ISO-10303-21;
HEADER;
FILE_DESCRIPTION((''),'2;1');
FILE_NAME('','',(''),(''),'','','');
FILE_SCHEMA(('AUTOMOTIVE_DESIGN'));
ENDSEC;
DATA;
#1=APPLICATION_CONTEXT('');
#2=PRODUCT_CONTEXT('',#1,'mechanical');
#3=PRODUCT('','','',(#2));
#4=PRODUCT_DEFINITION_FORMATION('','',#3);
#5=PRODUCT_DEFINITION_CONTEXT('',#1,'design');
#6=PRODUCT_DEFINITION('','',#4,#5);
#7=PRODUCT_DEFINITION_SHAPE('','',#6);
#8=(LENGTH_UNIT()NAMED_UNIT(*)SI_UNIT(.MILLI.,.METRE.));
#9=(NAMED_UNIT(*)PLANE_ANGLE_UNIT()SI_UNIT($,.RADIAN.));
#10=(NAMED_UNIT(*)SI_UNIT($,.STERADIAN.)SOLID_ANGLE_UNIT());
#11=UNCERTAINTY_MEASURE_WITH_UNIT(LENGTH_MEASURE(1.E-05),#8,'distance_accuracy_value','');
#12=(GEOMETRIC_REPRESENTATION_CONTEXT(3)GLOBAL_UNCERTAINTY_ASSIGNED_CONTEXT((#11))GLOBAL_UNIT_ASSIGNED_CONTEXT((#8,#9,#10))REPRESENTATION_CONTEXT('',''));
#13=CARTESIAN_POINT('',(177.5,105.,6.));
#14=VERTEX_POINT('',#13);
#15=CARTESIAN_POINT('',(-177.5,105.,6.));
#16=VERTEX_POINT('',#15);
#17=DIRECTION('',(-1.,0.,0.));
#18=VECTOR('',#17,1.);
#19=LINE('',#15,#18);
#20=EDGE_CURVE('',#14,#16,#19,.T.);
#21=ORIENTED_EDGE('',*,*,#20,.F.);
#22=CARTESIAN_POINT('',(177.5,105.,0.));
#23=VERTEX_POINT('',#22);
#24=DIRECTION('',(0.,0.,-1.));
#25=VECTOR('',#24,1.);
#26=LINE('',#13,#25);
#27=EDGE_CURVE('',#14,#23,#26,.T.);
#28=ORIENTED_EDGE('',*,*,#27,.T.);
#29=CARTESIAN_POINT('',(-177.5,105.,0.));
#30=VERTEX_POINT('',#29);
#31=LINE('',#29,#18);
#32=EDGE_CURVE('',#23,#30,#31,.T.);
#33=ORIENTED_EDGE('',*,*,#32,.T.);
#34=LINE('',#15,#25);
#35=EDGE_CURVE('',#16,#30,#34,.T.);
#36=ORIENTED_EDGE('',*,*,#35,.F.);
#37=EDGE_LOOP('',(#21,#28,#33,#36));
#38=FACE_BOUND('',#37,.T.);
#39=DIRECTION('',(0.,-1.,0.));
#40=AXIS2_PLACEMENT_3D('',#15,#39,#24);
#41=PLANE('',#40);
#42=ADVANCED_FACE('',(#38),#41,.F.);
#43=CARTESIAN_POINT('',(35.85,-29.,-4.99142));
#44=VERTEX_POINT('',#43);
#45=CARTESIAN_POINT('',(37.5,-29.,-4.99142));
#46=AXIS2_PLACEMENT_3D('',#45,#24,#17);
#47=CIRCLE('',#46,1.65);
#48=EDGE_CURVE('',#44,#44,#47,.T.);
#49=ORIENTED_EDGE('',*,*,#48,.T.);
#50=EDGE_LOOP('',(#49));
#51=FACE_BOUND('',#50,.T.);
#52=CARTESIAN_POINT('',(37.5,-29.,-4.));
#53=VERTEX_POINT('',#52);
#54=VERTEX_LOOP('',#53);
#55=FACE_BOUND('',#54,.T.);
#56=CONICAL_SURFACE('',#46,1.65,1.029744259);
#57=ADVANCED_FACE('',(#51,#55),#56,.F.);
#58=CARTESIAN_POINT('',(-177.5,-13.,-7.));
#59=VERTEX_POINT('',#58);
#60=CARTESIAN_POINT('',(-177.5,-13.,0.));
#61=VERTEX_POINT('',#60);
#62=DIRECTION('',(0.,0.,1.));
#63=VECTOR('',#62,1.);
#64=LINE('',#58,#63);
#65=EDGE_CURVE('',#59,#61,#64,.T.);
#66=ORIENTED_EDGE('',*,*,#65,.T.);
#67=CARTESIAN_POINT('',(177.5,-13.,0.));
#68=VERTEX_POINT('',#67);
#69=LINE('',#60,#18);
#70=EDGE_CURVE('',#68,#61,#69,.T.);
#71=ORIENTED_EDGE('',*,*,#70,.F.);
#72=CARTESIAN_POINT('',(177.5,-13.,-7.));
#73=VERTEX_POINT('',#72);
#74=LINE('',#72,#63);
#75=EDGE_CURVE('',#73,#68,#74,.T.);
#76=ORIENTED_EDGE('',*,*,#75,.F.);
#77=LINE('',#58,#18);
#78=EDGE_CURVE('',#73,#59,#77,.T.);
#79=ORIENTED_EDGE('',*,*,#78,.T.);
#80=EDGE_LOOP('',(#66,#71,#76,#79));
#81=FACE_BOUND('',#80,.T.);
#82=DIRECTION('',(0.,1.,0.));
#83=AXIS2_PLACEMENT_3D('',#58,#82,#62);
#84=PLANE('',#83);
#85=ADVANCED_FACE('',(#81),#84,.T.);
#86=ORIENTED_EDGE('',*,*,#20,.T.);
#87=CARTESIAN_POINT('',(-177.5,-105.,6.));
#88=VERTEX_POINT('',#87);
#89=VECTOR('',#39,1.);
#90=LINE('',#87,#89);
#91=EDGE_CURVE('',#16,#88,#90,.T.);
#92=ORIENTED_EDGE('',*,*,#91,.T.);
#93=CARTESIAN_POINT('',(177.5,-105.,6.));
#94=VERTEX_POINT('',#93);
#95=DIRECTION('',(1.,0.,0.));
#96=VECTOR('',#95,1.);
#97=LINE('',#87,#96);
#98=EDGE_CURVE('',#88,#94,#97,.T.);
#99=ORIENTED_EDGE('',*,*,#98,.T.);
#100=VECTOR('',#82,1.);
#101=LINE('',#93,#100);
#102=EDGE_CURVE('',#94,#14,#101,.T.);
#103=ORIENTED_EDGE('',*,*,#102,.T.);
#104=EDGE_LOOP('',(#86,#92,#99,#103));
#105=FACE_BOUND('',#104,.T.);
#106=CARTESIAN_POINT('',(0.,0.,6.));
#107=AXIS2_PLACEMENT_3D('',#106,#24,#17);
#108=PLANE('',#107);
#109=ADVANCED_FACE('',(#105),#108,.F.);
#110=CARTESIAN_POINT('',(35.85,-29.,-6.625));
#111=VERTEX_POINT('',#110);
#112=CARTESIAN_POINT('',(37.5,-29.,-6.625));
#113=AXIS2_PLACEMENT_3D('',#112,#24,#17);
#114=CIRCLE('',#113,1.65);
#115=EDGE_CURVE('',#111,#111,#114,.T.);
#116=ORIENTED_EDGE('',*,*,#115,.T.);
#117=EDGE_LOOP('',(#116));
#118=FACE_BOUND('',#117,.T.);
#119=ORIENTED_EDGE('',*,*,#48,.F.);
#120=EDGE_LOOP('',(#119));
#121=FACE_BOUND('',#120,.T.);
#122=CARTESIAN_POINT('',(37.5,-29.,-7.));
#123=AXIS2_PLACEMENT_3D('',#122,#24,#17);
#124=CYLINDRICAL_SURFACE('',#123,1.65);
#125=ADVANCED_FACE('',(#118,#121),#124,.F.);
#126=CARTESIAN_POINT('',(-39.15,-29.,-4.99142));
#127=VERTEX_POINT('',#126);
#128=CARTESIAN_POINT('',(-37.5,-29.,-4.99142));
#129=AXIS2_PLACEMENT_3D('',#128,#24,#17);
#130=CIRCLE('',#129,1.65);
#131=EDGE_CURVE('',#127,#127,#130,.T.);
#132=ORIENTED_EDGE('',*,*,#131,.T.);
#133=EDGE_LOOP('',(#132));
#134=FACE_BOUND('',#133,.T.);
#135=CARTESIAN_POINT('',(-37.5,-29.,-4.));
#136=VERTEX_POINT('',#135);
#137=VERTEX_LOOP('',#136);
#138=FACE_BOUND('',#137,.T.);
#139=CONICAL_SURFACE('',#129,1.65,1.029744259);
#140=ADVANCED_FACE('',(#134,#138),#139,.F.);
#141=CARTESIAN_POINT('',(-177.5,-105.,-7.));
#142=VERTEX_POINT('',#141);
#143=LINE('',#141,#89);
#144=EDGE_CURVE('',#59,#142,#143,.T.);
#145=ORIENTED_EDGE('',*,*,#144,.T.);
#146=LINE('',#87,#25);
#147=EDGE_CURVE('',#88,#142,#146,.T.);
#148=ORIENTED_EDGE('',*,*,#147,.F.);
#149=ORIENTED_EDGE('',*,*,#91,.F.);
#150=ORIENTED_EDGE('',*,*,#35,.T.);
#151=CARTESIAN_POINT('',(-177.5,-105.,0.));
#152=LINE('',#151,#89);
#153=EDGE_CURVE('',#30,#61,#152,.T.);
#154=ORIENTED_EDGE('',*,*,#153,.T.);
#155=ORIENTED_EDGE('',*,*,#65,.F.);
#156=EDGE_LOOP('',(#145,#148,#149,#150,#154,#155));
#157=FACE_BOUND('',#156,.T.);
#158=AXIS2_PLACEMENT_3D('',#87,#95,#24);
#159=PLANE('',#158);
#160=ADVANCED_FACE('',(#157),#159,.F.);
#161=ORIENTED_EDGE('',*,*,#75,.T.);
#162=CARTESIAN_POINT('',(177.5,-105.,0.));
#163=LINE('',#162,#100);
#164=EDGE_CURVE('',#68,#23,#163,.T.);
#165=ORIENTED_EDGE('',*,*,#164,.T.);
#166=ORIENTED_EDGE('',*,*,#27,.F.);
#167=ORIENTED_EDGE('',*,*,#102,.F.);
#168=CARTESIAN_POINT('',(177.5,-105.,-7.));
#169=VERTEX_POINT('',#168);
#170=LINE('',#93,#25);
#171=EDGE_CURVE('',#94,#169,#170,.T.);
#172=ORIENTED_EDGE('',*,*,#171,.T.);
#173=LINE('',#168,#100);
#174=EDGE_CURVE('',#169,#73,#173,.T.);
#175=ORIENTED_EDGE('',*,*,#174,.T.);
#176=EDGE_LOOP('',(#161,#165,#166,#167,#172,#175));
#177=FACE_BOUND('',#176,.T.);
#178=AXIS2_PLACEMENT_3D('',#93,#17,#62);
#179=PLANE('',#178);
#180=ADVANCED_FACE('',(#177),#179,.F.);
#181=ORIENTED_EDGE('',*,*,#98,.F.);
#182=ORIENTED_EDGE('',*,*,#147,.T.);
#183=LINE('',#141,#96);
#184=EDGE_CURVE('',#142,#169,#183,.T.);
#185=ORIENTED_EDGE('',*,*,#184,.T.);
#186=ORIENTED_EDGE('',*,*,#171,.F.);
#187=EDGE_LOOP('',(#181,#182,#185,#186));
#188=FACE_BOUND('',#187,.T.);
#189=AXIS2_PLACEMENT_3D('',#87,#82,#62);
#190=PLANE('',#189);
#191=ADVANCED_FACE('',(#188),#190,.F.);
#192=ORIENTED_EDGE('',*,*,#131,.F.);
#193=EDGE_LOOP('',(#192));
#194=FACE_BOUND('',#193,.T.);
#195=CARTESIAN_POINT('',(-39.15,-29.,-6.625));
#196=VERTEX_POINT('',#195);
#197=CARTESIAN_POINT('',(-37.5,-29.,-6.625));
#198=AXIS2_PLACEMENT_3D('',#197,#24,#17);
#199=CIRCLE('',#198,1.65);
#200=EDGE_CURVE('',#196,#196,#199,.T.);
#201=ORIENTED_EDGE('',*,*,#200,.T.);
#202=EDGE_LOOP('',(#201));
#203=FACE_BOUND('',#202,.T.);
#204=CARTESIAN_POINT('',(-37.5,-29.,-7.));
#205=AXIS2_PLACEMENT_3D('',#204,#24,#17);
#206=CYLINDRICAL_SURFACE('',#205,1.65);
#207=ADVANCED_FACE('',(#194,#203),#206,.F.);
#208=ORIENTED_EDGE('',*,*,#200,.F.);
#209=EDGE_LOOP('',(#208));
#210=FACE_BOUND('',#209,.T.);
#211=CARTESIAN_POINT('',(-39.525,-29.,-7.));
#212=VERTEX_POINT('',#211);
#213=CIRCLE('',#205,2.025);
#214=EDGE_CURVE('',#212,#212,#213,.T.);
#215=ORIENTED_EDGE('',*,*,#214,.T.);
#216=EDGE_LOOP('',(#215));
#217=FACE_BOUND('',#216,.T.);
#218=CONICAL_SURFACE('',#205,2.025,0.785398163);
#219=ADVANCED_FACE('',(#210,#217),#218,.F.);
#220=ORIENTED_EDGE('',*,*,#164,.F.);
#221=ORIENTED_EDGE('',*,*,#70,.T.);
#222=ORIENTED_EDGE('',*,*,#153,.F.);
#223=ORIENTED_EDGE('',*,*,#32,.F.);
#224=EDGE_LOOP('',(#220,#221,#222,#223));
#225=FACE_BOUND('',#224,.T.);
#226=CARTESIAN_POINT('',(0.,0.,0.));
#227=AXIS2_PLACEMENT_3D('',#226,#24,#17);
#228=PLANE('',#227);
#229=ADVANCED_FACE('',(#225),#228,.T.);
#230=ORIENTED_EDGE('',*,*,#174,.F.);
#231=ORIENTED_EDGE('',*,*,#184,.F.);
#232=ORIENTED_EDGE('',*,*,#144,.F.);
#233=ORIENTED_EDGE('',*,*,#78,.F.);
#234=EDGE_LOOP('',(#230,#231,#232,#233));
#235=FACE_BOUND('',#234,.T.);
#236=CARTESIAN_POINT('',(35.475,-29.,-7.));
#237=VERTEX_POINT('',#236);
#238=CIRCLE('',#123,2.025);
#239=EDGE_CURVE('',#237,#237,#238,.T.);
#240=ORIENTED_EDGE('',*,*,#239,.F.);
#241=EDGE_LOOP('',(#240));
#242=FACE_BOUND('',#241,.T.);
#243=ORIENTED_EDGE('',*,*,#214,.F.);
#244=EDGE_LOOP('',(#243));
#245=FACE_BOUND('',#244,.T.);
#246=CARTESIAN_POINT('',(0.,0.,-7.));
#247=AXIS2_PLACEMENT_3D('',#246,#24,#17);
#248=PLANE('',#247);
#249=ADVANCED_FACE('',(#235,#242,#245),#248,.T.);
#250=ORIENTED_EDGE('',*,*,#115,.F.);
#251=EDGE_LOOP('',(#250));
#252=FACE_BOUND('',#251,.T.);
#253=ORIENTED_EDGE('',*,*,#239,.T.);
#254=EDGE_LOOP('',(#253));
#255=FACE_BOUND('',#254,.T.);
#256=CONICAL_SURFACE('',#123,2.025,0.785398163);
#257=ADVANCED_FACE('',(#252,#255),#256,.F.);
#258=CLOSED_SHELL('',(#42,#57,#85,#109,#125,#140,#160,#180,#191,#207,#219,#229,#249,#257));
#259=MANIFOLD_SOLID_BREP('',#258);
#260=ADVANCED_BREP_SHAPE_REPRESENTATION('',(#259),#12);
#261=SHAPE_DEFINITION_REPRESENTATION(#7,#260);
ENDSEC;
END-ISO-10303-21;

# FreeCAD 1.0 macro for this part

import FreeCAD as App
import Part
import Sketcher
Q = App.Units.Quantity

doc = App.newDocument("Part")
body = doc.addObject("PartDesign::Body", "Body")

sketch1 = body.newObject("Sketcher::SketchObject", "Sketch")
sketch1.AttachmentSupport = (doc.getObject("XY_Plane"), [""])
sketch1.MapMode = "FlatFace"
sketch1.addGeometry(Part.LineSegment(App.Vector(-178, 105, 0), App.Vector(-178, -105, 0)), False)
sketch1.addGeometry(Part.LineSegment(App.Vector(-178, -105, 0), App.Vector(178, -105, 0)), False)
sketch1.addGeometry(Part.LineSegment(App.Vector(178, -105, 0), App.Vector(178, 105, 0)), False)
sketch1.addGeometry(Part.LineSegment(App.Vector(178, 105, 0), App.Vector(-178, 105, 0)), False)
sketch1.addConstraint(Sketcher.Constraint("Coincident", 0, 2, 1, 1))
sketch1.addConstraint(Sketcher.Constraint("Coincident", 1, 2, 2, 1))
sketch1.addConstraint(Sketcher.Constraint("Coincident", 2, 2, 3, 1))
sketch1.addConstraint(Sketcher.Constraint("Coincident", 3, 2, 0, 1))
sketch1.addConstraint(Sketcher.Constraint("Vertical", 0))
sketch1.addConstraint(Sketcher.Constraint("Horizontal", 1))
sketch1.addConstraint(Sketcher.Constraint("Vertical", 2))
sketch1.addConstraint(Sketcher.Constraint("Horizontal", 3))
sketch1.addConstraint(Sketcher.Constraint("Symmetric", 0, 2, 2, 2, -1, 1))
sketch1.addConstraint(Sketcher.Constraint("DistanceX", 1, 1, 1, 2, Q("355 mm")))
sketch1.addConstraint(Sketcher.Constraint("DistanceY", 0, 2, 0, 1, Q("210 mm")))
pad1 = body.newObject("PartDesign::Pad", "Pad")
pad1.Profile = sketch1
pad1.Length = 6

sketch2 = body.newObject("Sketcher::SketchObject", "Sketch001")
sketch2.AttachmentSupport = (doc.getObject("XY_Plane"), [""])
sketch2.MapMode = "FlatFace"
sketch2.addGeometry(Part.LineSegment(App.Vector(-178, -13, 0), App.Vector(-178, -105, 0)), False)
sketch2.addGeometry(Part.LineSegment(App.Vector(-178, -105, 0), App.Vector(178, -105, 0)), False)
sketch2.addGeometry(Part.LineSegment(App.Vector(178, -105, 0), App.Vector(178, -13, 0)), False)
sketch2.addGeometry(Part.LineSegment(App.Vector(178, -13, 0), App.Vector(-178, -13, 0)), False)
sketch2.addConstraint(Sketcher.Constraint("Coincident", 0, 2, 1, 1))
sketch2.addConstraint(Sketcher.Constraint("Coincident", 1, 2, 2, 1))
sketch2.addConstraint(Sketcher.Constraint("Coincident", 2, 2, 3, 1))
sketch2.addConstraint(Sketcher.Constraint("Coincident", 3, 2, 0, 1))
sketch2.addConstraint(Sketcher.Constraint("Vertical", 0))
sketch2.addConstraint(Sketcher.Constraint("Horizontal", 1))
sketch2.addConstraint(Sketcher.Constraint("Vertical", 2))
sketch2.addConstraint(Sketcher.Constraint("Horizontal", 3))
sketch2.addConstraint(Sketcher.Constraint("DistanceX", 1, 1, 1, 2, Q("355 mm")))
sketch2.addConstraint(Sketcher.Constraint("DistanceY", 0, 2, 0, 1, Q("92 mm")))
sketch2.addConstraint(Sketcher.Constraint("DistanceY", 0, 2, -1, 1, Q("105 mm")))
sketch2.addConstraint(Sketcher.Constraint("DistanceX", 0, 2, -1, 1, Q("177.5 mm")))
pad2 = body.newObject("PartDesign::Pad", "Pad001")
pad2.Profile = sketch2
pad2.Length = 7
pad2.Reversed = True

sketch3 = body.newObject("Sketcher::SketchObject", "Sketch002")
sketch3.AttachmentSupport = (doc.getObject("XY_Plane"), [""])
sketch3.MapMode = "FlatFace"
sketch3.AttachmentOffset = App.Placement(App.Vector(0, 0, -7), App.Rotation())
sketch3.addGeometry(Part.Circle(App.Vector(-37.5, -29, 0), App.Vector(0, 0, 1), 1.6), False)
sketch3.addGeometry(Part.Circle(App.Vector(37.5, -29, 0), App.Vector(0, 0, 1), 1.6), False)
sketch3.addConstraint(Sketcher.Constraint("Equal", 0, 1))
sketch3.addConstraint(Sketcher.Constraint("Symmetric", 0, 3, 1, 3, -2))
sketch3.addConstraint(Sketcher.Constraint("Diameter", 0, Q("3.3 mm")))
sketch3.addConstraint(Sketcher.Constraint("DistanceY", 0, 3, -1, 1, Q("29 mm")))
sketch3.addConstraint(Sketcher.Constraint("DistanceX", 0, 3, 1, 3, Q("75 mm")))
doc.recompute()
hole = body.newObject("PartDesign::Hole", "Hole")
hole.Profile = sketch3
hole.ThreadType = "None"
hole.Diameter = 3.3
hole.DepthType = "Dimension"
hole.Depth = 2.00858
hole.DrillPoint = "Angled"
hole.DrillPointAngle = 118
hole.HoleCutType = "Countersink"
hole.HoleCutDiameter = 4.05
hole.HoleCutCountersinkAngle = 90
hole.Reversed = True

doc.recompute()
